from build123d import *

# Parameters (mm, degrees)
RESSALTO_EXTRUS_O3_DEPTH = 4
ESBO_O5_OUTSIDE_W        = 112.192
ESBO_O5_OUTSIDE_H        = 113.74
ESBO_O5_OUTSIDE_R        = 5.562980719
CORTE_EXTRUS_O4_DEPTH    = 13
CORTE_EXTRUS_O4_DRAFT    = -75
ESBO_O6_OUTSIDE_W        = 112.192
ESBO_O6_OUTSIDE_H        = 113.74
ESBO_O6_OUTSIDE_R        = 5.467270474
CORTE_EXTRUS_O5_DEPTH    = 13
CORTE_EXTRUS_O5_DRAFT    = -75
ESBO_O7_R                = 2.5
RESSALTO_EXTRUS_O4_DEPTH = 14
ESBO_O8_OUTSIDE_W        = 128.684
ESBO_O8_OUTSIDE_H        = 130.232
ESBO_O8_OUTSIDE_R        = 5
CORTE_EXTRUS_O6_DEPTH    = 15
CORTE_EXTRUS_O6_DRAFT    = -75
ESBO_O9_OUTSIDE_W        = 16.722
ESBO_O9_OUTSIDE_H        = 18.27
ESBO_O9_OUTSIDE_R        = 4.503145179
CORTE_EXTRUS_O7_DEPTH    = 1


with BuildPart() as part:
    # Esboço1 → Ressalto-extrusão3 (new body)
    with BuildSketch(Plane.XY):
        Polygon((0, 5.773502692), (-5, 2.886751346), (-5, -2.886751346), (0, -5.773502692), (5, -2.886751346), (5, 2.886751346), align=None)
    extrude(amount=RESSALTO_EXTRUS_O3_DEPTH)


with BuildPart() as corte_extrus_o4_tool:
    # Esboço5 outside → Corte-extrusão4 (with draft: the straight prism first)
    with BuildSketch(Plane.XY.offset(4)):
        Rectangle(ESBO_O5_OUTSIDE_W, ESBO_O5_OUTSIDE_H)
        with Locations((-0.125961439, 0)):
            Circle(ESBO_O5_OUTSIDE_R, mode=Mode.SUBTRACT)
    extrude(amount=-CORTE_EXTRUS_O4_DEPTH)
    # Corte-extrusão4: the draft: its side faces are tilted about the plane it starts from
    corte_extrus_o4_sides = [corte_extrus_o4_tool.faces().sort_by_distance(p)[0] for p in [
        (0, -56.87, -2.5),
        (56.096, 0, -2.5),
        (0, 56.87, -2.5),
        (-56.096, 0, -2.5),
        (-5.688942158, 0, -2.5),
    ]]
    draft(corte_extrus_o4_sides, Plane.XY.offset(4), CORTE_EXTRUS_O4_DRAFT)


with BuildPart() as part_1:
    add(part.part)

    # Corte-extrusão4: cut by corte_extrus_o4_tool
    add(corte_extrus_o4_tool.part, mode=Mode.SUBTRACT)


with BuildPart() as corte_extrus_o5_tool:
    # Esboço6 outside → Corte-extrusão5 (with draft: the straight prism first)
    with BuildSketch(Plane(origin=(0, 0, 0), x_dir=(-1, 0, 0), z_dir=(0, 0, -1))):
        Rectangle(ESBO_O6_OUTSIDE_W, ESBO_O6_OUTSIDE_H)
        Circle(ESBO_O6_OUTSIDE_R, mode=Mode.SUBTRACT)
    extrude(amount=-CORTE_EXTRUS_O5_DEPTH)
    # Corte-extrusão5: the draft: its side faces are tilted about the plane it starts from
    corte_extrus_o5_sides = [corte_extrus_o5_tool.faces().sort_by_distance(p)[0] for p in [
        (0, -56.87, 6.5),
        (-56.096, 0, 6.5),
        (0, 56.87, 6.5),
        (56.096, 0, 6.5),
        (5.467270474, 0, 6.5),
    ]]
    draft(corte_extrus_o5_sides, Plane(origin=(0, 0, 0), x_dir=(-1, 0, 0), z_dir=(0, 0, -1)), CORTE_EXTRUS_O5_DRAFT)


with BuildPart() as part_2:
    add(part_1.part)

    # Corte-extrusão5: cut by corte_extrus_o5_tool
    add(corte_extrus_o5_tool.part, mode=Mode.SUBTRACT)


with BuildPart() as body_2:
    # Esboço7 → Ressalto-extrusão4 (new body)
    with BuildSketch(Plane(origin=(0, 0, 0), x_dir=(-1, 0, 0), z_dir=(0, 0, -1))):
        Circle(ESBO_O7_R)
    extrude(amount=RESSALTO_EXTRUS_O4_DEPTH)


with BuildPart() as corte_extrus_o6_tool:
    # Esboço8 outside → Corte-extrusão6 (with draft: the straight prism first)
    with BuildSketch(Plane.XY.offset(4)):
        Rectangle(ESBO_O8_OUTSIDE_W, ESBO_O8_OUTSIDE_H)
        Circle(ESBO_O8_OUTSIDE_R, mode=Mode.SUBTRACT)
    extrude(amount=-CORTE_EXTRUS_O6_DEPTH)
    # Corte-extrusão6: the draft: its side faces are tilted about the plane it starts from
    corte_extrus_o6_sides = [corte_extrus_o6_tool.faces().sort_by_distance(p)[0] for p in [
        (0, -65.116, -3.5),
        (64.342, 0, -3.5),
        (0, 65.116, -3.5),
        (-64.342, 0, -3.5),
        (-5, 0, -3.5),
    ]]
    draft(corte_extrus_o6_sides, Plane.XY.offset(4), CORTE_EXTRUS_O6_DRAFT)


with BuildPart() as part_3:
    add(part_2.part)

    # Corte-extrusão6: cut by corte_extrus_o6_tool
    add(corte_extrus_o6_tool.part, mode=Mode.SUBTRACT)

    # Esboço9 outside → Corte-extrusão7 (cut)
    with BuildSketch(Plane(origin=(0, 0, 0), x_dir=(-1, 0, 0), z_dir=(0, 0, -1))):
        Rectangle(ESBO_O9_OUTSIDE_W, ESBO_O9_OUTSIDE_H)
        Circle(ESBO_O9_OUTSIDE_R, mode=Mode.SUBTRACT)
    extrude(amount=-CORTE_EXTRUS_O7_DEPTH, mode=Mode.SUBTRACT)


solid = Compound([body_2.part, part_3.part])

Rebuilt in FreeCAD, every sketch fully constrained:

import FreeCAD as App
import Part
import Sketcher
from FreeCAD import Vector
Q = App.Units.Quantity


def faces_at(feature, points):
    """Names of the faces that lie closest to the given points."""
    faces = feature.Shape.Faces
    near = lambda p: min(range(len(faces)), key=lambda i: faces[i].distToShape(Part.Vertex(*p))[0])
    return sorted({f"Face{near(p) + 1}" for p in points})

doc = App.newDocument("Part")
body = doc.addObject("PartDesign::Body", "Body")

# Sketch on XY plane
sketch1 = body.newObject("Sketcher::SketchObject", "Sketch")
sketch1.AttachmentSupport = (doc.getObject("XY_Plane"), [""])
sketch1.MapMode = "FlatFace"
sketch1.addGeometry([
    Part.LineSegment(Vector(0, 6, 0), Vector(-5, 3, 0)),  # 0
    Part.LineSegment(Vector(-5, 3, 0), Vector(-5, -3, 0)),  # 1
    Part.LineSegment(Vector(-5, -3, 0), Vector(0, -6, 0)),  # 2
    Part.LineSegment(Vector(0, -6, 0), Vector(5, -3, 0)),  # 3
    Part.LineSegment(Vector(5, -3, 0), Vector(5, 3, 0)),  # 4
    Part.LineSegment(Vector(5, 3, 0), Vector(0, 6, 0)),  # 5
], False)
sketch1.addConstraint([
    Sketcher.Constraint("Coincident", 0, 2, 1, 1),
    Sketcher.Constraint("Coincident", 1, 2, 2, 1),
    Sketcher.Constraint("Coincident", 2, 2, 3, 1),
    Sketcher.Constraint("Coincident", 3, 2, 4, 1),
    Sketcher.Constraint("Coincident", 4, 2, 5, 1),
    Sketcher.Constraint("Coincident", 5, 2, 0, 1),
    Sketcher.Constraint("Vertical", 1),
    Sketcher.Constraint("Vertical", 4),
    Sketcher.Constraint("Symmetric", 0, 2, 3, 2, -1, 1),
    Sketcher.Constraint("Symmetric", 2, 2, 5, 2, -1, 1),
    Sketcher.Constraint("PointOnObject", 2, 2, -2),
    Sketcher.Constraint("Parallel", 2, 5),
    Sketcher.Constraint("Horizontal", 1, 2, 3, 2),
    Sketcher.Constraint("Angle", 0, Q("-150 deg")),
    Sketcher.Constraint("DistanceX", 0, 2, -1, 1, Q("5 mm")),
    Sketcher.Constraint("DistanceY", 1, 2, 1, 1, Q("5.773503 mm")),
])
pad1 = body.newObject("PartDesign::Pad", "Pad")
pad1.Profile = sketch1
pad1.Length = 4
body2 = doc.addObject("PartDesign::Body", "Body001")

# Sketch on XY plane
sketch2 = body2.newObject("Sketcher::SketchObject", "Sketch001")
sketch2.AttachmentSupport = (doc.getObject("XY_Plane001"), [""])
sketch2.MapMode = "FlatFace"
sketch2.AttachmentOffset = App.Placement(Vector(0, 0, 4), App.Rotation())
sketch2.addGeometry([
    Part.LineSegment(Vector(-56, 57, 0), Vector(-56, -57, 0)),  # 0
    Part.LineSegment(Vector(-56, -57, 0), Vector(56, -57, 0)),  # 1
    Part.LineSegment(Vector(56, -57, 0), Vector(56, 57, 0)),  # 2
    Part.LineSegment(Vector(56, 57, 0), Vector(-56, 57, 0)),  # 3
    Part.Circle(Vector(0, 0, 0), Vector(0, 0, 1), 6),  # 4
], False)
sketch2.addConstraint([
    Sketcher.Constraint("Coincident", 0, 2, 1, 1),
    Sketcher.Constraint("Coincident", 1, 2, 2, 1),
    Sketcher.Constraint("Coincident", 2, 2, 3, 1),
    Sketcher.Constraint("Coincident", 3, 2, 0, 1),
    Sketcher.Constraint("Vertical", 0),
    Sketcher.Constraint("Horizontal", 1),
    Sketcher.Constraint("Vertical", 2),
    Sketcher.Constraint("Horizontal", 3),
    Sketcher.Constraint("Symmetric", 0, 2, 2, 2, -1, 1),
    Sketcher.Constraint("PointOnObject", 4, 3, -1),
    Sketcher.Constraint("DistanceY", 0, 2, 0, 1, Q("113.74 mm")),
    Sketcher.Constraint("Diameter", 4, Q("11.125961 mm")),
    Sketcher.Constraint("DistanceX", 1, 1, 1, 2, Q("112.192 mm")),
    Sketcher.Constraint("DistanceX", 4, 3, -1, 1, Q("0.125961 mm")),
])
pad2 = body2.newObject("PartDesign::Pad", "Pad001")
pad2.Profile = sketch2
pad2.Length = 13
pad2.Reversed = True
doc.recompute()

datumplane = body2.newObject("PartDesign::Plane", "DatumPlane")
datumplane.AttachmentSupport = (doc.getObject("XY_Plane001"), [""])
datumplane.MapMode = "FlatFace"
datumplane.AttachmentOffset = App.Placement(Vector(0, 0, 4), App.Rotation())
draft = body2.newObject("PartDesign::Draft", "Draft")
draft.Base = (pad2, faces_at(pad2, [
    (0, -56.87, -2.5),
    (56.096, 0, -2.5),
    (0, 56.87, -2.5),
    (-56.096, 0, -2.5),
    (-5.689, 0, -2.5),
]))
draft.NeutralPlane = (datumplane, [""])
draft.Angle = 75
draft.Reversed = True
doc.recompute()

boolean = body.newObject("PartDesign::Boolean", "Boolean")
boolean.Type = "Cut"
boolean.addObjects([body2])
body3 = doc.addObject("PartDesign::Body", "Body002")

# Sketch on XY plane
sketch3 = body3.newObject("Sketcher::SketchObject", "Sketch002")
sketch3.AttachmentSupport = (doc.getObject("XY_Plane002"), [""])
sketch3.MapMode = "FlatFace"
sketch3.addGeometry([
    Part.LineSegment(Vector(56, 57, 0), Vector(56, -57, 0)),  # 0
    Part.LineSegment(Vector(56, -57, 0), Vector(-56, -57, 0)),  # 1
    Part.LineSegment(Vector(-56, -57, 0), Vector(-56, 57, 0)),  # 2
    Part.LineSegment(Vector(-56, 57, 0), Vector(56, 57, 0)),  # 3
    Part.Circle(Vector(0, 0, 0), Vector(0, 0, 1), 5),  # 4
], False)
sketch3.addConstraint([
    Sketcher.Constraint("Coincident", 0, 2, 1, 1),
    Sketcher.Constraint("Coincident", 1, 2, 2, 1),
    Sketcher.Constraint("Coincident", 2, 2, 3, 1),
    Sketcher.Constraint("Coincident", 3, 2, 0, 1),
    Sketcher.Constraint("Vertical", 0),
    Sketcher.Constraint("Horizontal", 1),
    Sketcher.Constraint("Vertical", 2),
    Sketcher.Constraint("Horizontal", 3),
    Sketcher.Constraint("Coincident", 4, 3, -1, 1),
    Sketcher.Constraint("Symmetric", 0, 2, 2, 2, -1, 1),
    Sketcher.Constraint("DistanceY", 0, 2, 0, 1, Q("113.74 mm")),
    Sketcher.Constraint("Diameter", 4, Q("10.934541 mm")),
    Sketcher.Constraint("DistanceX", 1, 2, 1, 1, Q("112.192 mm")),
])
pad3 = body3.newObject("PartDesign::Pad", "Pad002")
pad3.Profile = sketch3
pad3.Length = 13
doc.recompute()

draft2 = body3.newObject("PartDesign::Draft", "Draft001")
draft2.Base = (pad3, faces_at(pad3, [
    (0, -56.87, 6.5),
    (-56.096, 0, 6.5),
    (0, 56.87, 6.5),
    (56.096, 0, 6.5),
    (5.467, 0, 6.5),
]))
draft2.NeutralPlane = (doc.getObject("XY_Plane002"), [""])
draft2.Angle = 75
draft2.Reversed = False
doc.recompute()

boolean2 = body.newObject("PartDesign::Boolean", "Boolean001")
boolean2.Type = "Cut"
boolean2.addObjects([body3])
body4 = doc.addObject("PartDesign::Body", "Body003")

# Sketch on XY plane
sketch4 = body4.newObject("Sketcher::SketchObject", "Sketch003")
sketch4.AttachmentSupport = (doc.getObject("XY_Plane003"), [""])
sketch4.MapMode = "FlatFace"
sketch4.addGeometry(Part.Circle(Vector(0, 0, 0), Vector(0, 0, 1), 2.5), False)
sketch4.addConstraint([
    Sketcher.Constraint("Coincident", 0, 3, -1, 1),
    Sketcher.Constraint("Diameter", 0, Q("5 mm")),
])
pad4 = body4.newObject("PartDesign::Pad", "Pad003")
pad4.Profile = sketch4
pad4.Length = 14
pad4.Reversed = True
body5 = doc.addObject("PartDesign::Body", "Body004")

# Sketch on XY plane
sketch5 = body5.newObject("Sketcher::SketchObject", "Sketch004")
sketch5.AttachmentSupport = (doc.getObject("XY_Plane004"), [""])
sketch5.MapMode = "FlatFace"
sketch5.AttachmentOffset = App.Placement(Vector(0, 0, 4), App.Rotation())
sketch5.addGeometry([
    Part.LineSegment(Vector(-64, 65, 0), Vector(-64, -65, 0)),  # 0
    Part.LineSegment(Vector(-64, -65, 0), Vector(64, -65, 0)),  # 1
    Part.LineSegment(Vector(64, -65, 0), Vector(64, 65, 0)),  # 2
    Part.LineSegment(Vector(64, 65, 0), Vector(-64, 65, 0)),  # 3
    Part.Circle(Vector(0, 0, 0), Vector(0, 0, 1), 5),  # 4
], False)
sketch5.addConstraint([
    Sketcher.Constraint("Coincident", 0, 2, 1, 1),
    Sketcher.Constraint("Coincident", 1, 2, 2, 1),
    Sketcher.Constraint("Coincident", 2, 2, 3, 1),
    Sketcher.Constraint("Coincident", 3, 2, 0, 1),
    Sketcher.Constraint("Vertical", 0),
    Sketcher.Constraint("Horizontal", 1),
    Sketcher.Constraint("Vertical", 2),
    Sketcher.Constraint("Horizontal", 3),
    Sketcher.Constraint("Coincident", 4, 3, -1, 1),
    Sketcher.Constraint("Symmetric", 0, 2, 2, 2, -1, 1),
    Sketcher.Constraint("Diameter", 4, Q("10 mm")),
    Sketcher.Constraint("DistanceX", 1, 1, 1, 2, Q("128.684 mm")),
    Sketcher.Constraint("DistanceY", 0, 2, 0, 1, Q("130.232 mm")),
])
pad5 = body5.newObject("PartDesign::Pad", "Pad004")
pad5.Profile = sketch5
pad5.Length = 15
pad5.Reversed = True
doc.recompute()

datumplane2 = body5.newObject("PartDesign::Plane", "DatumPlane001")
datumplane2.AttachmentSupport = (doc.getObject("XY_Plane004"), [""])
datumplane2.MapMode = "FlatFace"
datumplane2.AttachmentOffset = App.Placement(Vector(0, 0, 4), App.Rotation())
draft3 = body5.newObject("PartDesign::Draft", "Draft002")
draft3.Base = (pad5, faces_at(pad5, [
    (0, -65.116, -3.5),
    (64.342, 0, -3.5),
    (0, 65.116, -3.5),
    (-64.342, 0, -3.5),
    (-5, 0, -3.5),
]))
draft3.NeutralPlane = (datumplane2, [""])
draft3.Angle = 75
draft3.Reversed = True
doc.recompute()

boolean3 = body.newObject("PartDesign::Boolean", "Boolean002")
boolean3.Type = "Cut"
boolean3.addObjects([body5])

# Sketch on XY plane
sketch6 = body.newObject("Sketcher::SketchObject", "Sketch005")
sketch6.AttachmentSupport = (doc.getObject("XY_Plane"), [""])
sketch6.MapMode = "FlatFace"
sketch6.addGeometry([
    Part.LineSegment(Vector(8.4, 9.1, 0), Vector(8.4, -9.1, 0)),  # 0
    Part.LineSegment(Vector(8.4, -9.1, 0), Vector(-8.4, -9.1, 0)),  # 1
    Part.LineSegment(Vector(-8.4, -9.1, 0), Vector(-8.4, 9.1, 0)),  # 2
    Part.LineSegment(Vector(-8.4, 9.1, 0), Vector(8.4, 9.1, 0)),  # 3
    Part.Circle(Vector(0, 0, 0), Vector(0, 0, 1), 4.5),  # 4
], False)
sketch6.addConstraint([
    Sketcher.Constraint("Coincident", 0, 2, 1, 1),
    Sketcher.Constraint("Coincident", 1, 2, 2, 1),
    Sketcher.Constraint("Coincident", 2, 2, 3, 1),
    Sketcher.Constraint("Coincident", 3, 2, 0, 1),
    Sketcher.Constraint("Vertical", 0),
    Sketcher.Constraint("Horizontal", 1),
    Sketcher.Constraint("Vertical", 2),
    Sketcher.Constraint("Horizontal", 3),
    Sketcher.Constraint("Coincident", 4, 3, -1, 1),
    Sketcher.Constraint("Symmetric", 0, 2, 2, 2, -1, 1),
    Sketcher.Constraint("DistanceY", 0, 2, 0, 1, Q("18.27 mm")),
    Sketcher.Constraint("Diameter", 4, Q("9.00629 mm")),
    Sketcher.Constraint("DistanceX", 1, 2, 1, 1, Q("16.722 mm")),
])
pocket1 = body.newObject("PartDesign::Pocket", "Pocket")
pocket1.Profile = sketch6
pocket1.Length = 1
pocket1.Reversed = True

doc.recompute()
